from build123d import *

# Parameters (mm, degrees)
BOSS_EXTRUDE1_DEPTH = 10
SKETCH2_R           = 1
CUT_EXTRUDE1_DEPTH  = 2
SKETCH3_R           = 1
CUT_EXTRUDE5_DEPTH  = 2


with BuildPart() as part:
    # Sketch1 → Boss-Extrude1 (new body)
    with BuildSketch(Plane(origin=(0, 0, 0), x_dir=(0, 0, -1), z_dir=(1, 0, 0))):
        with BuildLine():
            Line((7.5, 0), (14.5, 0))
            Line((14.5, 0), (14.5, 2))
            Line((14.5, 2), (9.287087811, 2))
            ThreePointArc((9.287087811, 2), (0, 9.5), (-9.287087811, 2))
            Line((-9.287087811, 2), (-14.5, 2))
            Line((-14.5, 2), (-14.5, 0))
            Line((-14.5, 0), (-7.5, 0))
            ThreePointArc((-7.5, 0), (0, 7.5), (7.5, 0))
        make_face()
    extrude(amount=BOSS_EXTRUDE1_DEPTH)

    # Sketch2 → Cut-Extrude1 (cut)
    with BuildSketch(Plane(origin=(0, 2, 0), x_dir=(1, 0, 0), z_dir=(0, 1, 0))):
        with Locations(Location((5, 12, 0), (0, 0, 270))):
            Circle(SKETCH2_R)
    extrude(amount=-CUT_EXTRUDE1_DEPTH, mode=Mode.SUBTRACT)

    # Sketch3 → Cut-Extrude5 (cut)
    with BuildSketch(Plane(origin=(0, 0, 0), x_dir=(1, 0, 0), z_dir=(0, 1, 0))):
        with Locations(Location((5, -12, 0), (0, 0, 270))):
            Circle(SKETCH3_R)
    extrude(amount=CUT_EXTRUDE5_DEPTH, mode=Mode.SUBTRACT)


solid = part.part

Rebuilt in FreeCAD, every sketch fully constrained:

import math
import FreeCAD as App
import Part
import Sketcher

V = App.Vector

doc = App.newDocument("Part")
params = doc.addObject("Spreadsheet::Sheet", "Params")
for row, (alias, value) in enumerate([
    ("sketch1_radius", "9.5 mm"),
    ("sketch1_radius2", "7.5 mm"),
    ("sketch1_width", "2 mm"),
    ("sketch1_height", "7 mm"),
    ("pad1_length", "10 mm"),
    ("sketch2_diameter", "2 mm"),
    ("pocket1_length", "2 mm"),
    ("sketch3_diameter", "2 mm"),
    ("pocket2_length", "2 mm"),
], start=1):
    params.set(f"A{row}", alias)
    params.set(f"B{row}", "=" + value)
    params.setAlias(f"B{row}", alias)

body = doc.addObject("PartDesign::Body", "Body")

# Sketch on YZ plane
sketch1 = body.newObject("Sketcher::SketchObject", "Sketch")
sketch1.AttachmentSupport = (doc.getObject("YZ_Plane"), [""])
sketch1.MapMode = "FlatFace"
sketch1.addGeometry([
    Part.LineSegment(V(0, -7.5, 0), V(0, -14.5, 0)),  # 0
    Part.LineSegment(V(0, -14.5, 0), V(2, -14.5, 0)),  # 1
    Part.LineSegment(V(2, -14.5, 0), V(2, -9.3, 0)),  # 2
    Part.ArcOfCircle(Part.Circle(V(0, 0, 0), V(0, 0, 1), 9.5), math.radians(-78), math.radians(78)),  # 3
    Part.LineSegment(V(2, 9.3, 0), V(2, 14.5, 0)),  # 4
    Part.LineSegment(V(2, 14.5, 0), V(0, 14.5, 0)),  # 5
    Part.LineSegment(V(0, 14.5, 0), V(0, 7.5, 0)),  # 6
    Part.ArcOfCircle(Part.Circle(V(0, 0, 0), V(0, 0, 1), 7.5), math.radians(-90), math.radians(90)),  # 7
], False)
sketch1.addConstraint([
    Sketcher.Constraint("Coincident", 0, 2, 1, 1),
    Sketcher.Constraint("Coincident", 1, 2, 2, 1),
    Sketcher.Constraint("Coincident", 2, 2, 3, 1),
    Sketcher.Constraint("Coincident", 3, 2, 4, 1),
    Sketcher.Constraint("Coincident", 4, 2, 5, 1),
    Sketcher.Constraint("Coincident", 5, 2, 6, 1),
    Sketcher.Constraint("Coincident", 6, 2, 7, 2),
    Sketcher.Constraint("Coincident", 7, 1, 0, 1),
    Sketcher.Constraint("Vertical", 0),
    Sketcher.Constraint("Horizontal", 1),
    Sketcher.Constraint("Vertical", 2),
    Sketcher.Constraint("Vertical", 4),
    Sketcher.Constraint("Horizontal", 5),
    Sketcher.Constraint("Vertical", 6),
    Sketcher.Constraint("Coincident", 3, 3, -1, 1),
    Sketcher.Constraint("Coincident", 7, 3, -1, 1),
    Sketcher.Constraint("Symmetric", 0, 2, 5, 2, -1, 1),
    Sketcher.Constraint("PointOnObject", 0, 2, -2),
    Sketcher.Constraint("Vertical", 2, 2, 3, 2),
    Sketcher.Constraint("Radius", 3, 9.5),
    Sketcher.Constraint("Radius", 7, 7.5),
    Sketcher.Constraint("DistanceX", 1, 1, 1, 2, 2.0),
    Sketcher.Constraint("DistanceY", 0, 2, 0, 1, 7.0),
])
sketch1.setExpression("Constraints[19]", "Params.sketch1_radius")
sketch1.setExpression("Constraints[20]", "Params.sketch1_radius2")
sketch1.setExpression("Constraints[21]", "Params.sketch1_width")
sketch1.setExpression("Constraints[22]", "Params.sketch1_height")
pad1 = body.newObject("PartDesign::Pad", "Pad")
pad1.Profile = sketch1
pad1.setExpression("Length", "Params.pad1_length")

# Sketch on XZ plane
sketch2 = body.newObject("Sketcher::SketchObject", "Sketch001")
sketch2.AttachmentSupport = (doc.getObject("XZ_Plane"), [""])
sketch2.MapMode = "FlatFace"
sketch2.AttachmentOffset = App.Placement(V(0, 0, -2), App.Rotation())
sketch2.addGeometry(Part.Circle(V(5, -12, 0), V(0, 0, 1), 1), False)
sketch2.addConstraint([
    Sketcher.Constraint("Diameter", 0, 2.0),
    Sketcher.Constraint("DistanceX", -1, 1, 0, 3, 5.0),
    Sketcher.Constraint("DistanceY", 0, 3, -1, 1, 12.0),
])
sketch2.setExpression("Constraints[0]", "Params.sketch2_diameter")
pocket1 = body.newObject("PartDesign::Pocket", "Pocket")
pocket1.Profile = sketch2
pocket1.setExpression("Length", "Params.pocket1_length")
pocket1.Reversed = True

# Sketch on XZ plane
sketch3 = body.newObject("Sketcher::SketchObject", "Sketch002")
sketch3.AttachmentSupport = (doc.getObject("XZ_Plane"), [""])
sketch3.MapMode = "FlatFace"
sketch3.addGeometry(Part.Circle(V(5, 12, 0), V(0, 0, 1), 1), False)
sketch3.addConstraint([
    Sketcher.Constraint("Diameter", 0, 2.0),
    Sketcher.Constraint("DistanceX", -1, 1, 0, 3, 5.0),
    Sketcher.Constraint("DistanceY", -1, 1, 0, 3, 12.0),
])
sketch3.setExpression("Constraints[0]", "Params.sketch3_diameter")
pocket2 = body.newObject("PartDesign::Pocket", "Pocket001")
pocket2.Profile = sketch3
pocket2.setExpression("Length", "Params.pocket2_length")

doc.recompute()
